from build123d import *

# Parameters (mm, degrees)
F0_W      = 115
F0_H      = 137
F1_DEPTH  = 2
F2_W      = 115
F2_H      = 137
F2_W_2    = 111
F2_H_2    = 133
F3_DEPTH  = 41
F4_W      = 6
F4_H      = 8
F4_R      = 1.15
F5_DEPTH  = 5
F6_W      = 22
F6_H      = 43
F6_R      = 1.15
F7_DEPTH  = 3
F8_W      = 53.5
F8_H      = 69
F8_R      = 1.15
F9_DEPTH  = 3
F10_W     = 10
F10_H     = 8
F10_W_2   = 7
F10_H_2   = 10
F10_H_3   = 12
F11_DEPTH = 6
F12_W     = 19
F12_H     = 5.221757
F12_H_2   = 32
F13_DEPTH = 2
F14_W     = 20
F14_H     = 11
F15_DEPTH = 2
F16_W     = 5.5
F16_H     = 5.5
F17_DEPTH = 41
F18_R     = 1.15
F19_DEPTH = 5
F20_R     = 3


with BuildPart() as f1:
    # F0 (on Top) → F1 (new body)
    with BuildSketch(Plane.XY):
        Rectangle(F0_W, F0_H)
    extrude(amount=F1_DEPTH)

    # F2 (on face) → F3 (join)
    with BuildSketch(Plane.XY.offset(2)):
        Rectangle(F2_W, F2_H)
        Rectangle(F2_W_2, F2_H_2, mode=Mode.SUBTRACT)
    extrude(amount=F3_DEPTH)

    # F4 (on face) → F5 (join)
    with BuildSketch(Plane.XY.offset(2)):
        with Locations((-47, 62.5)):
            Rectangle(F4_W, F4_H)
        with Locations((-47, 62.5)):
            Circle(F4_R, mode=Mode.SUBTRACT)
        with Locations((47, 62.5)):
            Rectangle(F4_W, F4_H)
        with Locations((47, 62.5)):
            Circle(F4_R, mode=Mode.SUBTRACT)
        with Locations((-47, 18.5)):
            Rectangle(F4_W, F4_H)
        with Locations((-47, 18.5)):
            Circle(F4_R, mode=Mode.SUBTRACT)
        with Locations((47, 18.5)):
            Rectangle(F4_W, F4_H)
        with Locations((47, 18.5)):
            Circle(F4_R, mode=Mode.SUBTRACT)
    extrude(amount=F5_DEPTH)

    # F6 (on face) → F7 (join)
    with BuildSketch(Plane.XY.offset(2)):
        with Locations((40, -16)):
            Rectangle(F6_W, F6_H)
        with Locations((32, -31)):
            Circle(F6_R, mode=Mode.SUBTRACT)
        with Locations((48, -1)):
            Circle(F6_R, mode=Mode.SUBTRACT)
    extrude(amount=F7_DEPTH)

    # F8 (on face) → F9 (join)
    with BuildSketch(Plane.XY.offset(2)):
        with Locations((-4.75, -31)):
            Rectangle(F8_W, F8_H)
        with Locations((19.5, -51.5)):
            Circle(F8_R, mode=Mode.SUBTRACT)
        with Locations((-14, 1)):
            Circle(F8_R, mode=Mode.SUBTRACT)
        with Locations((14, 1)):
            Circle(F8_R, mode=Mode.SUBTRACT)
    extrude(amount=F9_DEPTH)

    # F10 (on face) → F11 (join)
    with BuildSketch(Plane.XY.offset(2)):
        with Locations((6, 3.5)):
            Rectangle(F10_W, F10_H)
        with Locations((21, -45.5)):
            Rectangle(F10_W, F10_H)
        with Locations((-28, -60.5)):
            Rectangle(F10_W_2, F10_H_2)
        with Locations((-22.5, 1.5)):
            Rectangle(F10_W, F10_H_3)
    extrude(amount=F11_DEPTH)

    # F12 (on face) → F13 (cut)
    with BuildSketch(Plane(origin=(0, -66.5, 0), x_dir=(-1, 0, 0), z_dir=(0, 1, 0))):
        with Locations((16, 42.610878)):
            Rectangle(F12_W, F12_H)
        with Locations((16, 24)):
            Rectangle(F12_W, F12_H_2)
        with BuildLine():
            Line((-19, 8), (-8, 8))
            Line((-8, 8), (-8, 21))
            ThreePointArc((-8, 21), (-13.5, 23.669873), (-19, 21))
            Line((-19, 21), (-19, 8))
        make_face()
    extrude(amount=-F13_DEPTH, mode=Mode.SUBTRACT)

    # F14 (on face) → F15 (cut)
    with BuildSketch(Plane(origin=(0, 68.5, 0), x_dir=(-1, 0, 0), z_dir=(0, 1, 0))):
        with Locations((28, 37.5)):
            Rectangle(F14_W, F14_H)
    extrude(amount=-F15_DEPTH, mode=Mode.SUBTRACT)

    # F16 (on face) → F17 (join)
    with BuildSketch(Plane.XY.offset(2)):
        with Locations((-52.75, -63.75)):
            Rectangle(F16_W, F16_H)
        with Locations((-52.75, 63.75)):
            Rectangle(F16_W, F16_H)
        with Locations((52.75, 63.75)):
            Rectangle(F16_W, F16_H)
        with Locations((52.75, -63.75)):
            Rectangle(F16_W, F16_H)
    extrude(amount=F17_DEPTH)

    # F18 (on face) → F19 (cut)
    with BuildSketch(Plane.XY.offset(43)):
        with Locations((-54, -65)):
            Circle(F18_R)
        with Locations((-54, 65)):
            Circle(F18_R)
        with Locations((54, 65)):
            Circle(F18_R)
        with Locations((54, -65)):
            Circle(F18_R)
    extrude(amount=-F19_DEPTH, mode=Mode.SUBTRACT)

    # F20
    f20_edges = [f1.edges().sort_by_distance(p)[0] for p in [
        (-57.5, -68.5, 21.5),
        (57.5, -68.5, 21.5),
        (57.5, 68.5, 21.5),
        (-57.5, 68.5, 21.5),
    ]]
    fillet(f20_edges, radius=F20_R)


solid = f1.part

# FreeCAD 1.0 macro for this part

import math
import FreeCAD as App
import Part
import Sketcher
from FreeCAD import Vector


def edges_at(feature, points):
    """Names of the edges that pass closest to the given points."""
    edges = feature.Shape.Edges
    near = lambda p: min(range(len(edges)), key=lambda i: edges[i].distToShape(Part.Vertex(*p))[0])
    return sorted({f"Edge{near(p) + 1}" for p in points})


def add_polygon(sketch, points):
    """Adds a closed chain of lines whose ends are joined by coincident constraints."""
    first, n = sketch.GeometryCount, len(points)
    for a, b in zip(points, points[1:] + points[:1]):
        sketch.addGeometry(Part.LineSegment(App.Vector(*a, 0), App.Vector(*b, 0)), False)
    for i in range(n):
        sketch.addConstraint(Sketcher.Constraint("Coincident", first + i, 2, first + (i + 1) % n, 1))

doc = App.newDocument("Part")
body = doc.addObject("PartDesign::Body", "Body")

# Sketch on XY plane
sketch1 = body.newObject("Sketcher::SketchObject", "Sketch")
sketch1.AttachmentSupport = (doc.getObject("XY_Plane"), [""])
sketch1.MapMode = "FlatFace"
add_polygon(sketch1, [(-58, 68), (-58, -68), (58, -68), (58, 68)])  # lines 0-3
sketch1.addConstraint([
    Sketcher.Constraint("Vertical", 0),
    Sketcher.Constraint("Horizontal", 1),
    Sketcher.Constraint("Vertical", 2),
    Sketcher.Constraint("Horizontal", 3),
    Sketcher.Constraint("Symmetric", 0, 2, 2, 2, -1, 1),
    Sketcher.Constraint("DistanceX", 1, 1, 1, 2, 115.0),
    Sketcher.Constraint("DistanceY", 0, 2, 0, 1, 137.0),
])
pad1 = body.newObject("PartDesign::Pad", "Pad")
pad1.Profile = sketch1
pad1.Length = 2

# Sketch on XY plane
sketch2 = body.newObject("Sketcher::SketchObject", "Sketch001")
sketch2.AttachmentSupport = (doc.getObject("XY_Plane"), [""])
sketch2.MapMode = "FlatFace"
sketch2.AttachmentOffset = App.Placement(Vector(0, 0, 2), App.Rotation())
add_polygon(sketch2, [(-58, 68), (-58, -68), (58, -68), (58, 68)])  # lines 0-3
add_polygon(sketch2, [(56, -66), (-56, -66), (-56, 66), (56, 66)])  # lines 4-7
sketch2.addConstraint([
    Sketcher.Constraint("Vertical", 0),
    Sketcher.Constraint("Horizontal", 1),
    Sketcher.Constraint("Vertical", 2),
    Sketcher.Constraint("Horizontal", 3),
    Sketcher.Constraint("Horizontal", 4),
    Sketcher.Constraint("Vertical", 5),
    Sketcher.Constraint("Horizontal", 6),
    Sketcher.Constraint("Vertical", 7),
    Sketcher.Constraint("Symmetric", 0, 2, 2, 2, -1, 1),
    Sketcher.Constraint("Symmetric", 4, 2, 6, 2, -1, 1),
    Sketcher.Constraint("DistanceX", 1, 1, 1, 2, 115.0),
    Sketcher.Constraint("DistanceX", 4, 2, 4, 1, 111.0),
    Sketcher.Constraint("DistanceY", 0, 2, 0, 1, 137.0),
    Sketcher.Constraint("DistanceY", 5, 1, 5, 2, 133.0),
])
pad2 = body.newObject("PartDesign::Pad", "Pad001")
pad2.Profile = sketch2
pad2.Length = 41

# Sketch on XY plane
sketch3 = body.newObject("Sketcher::SketchObject", "Sketch002")
sketch3.AttachmentSupport = (doc.getObject("XY_Plane"), [""])
sketch3.MapMode = "FlatFace"
sketch3.AttachmentOffset = App.Placement(Vector(0, 0, 2), App.Rotation())
add_polygon(sketch3, [(-50, 66.5), (-50, 58.5), (-44, 58.5), (-44, 66.5)])  # lines 0-3
sketch3.addGeometry(Part.Circle(Vector(-47, 62.5, 0), Vector(0, 0, 1), 1.1), False)  # 4
add_polygon(sketch3, [(44, 66.5), (44, 58.5), (50, 58.5), (50, 66.5)])  # lines 5-8
sketch3.addGeometry(Part.Circle(Vector(47, 62.5, 0), Vector(0, 0, 1), 1.1), False)  # 9
add_polygon(sketch3, [(-50, 22.5), (-50, 14.5), (-44, 14.5), (-44, 22.5)])  # lines 10-13
sketch3.addGeometry(Part.Circle(Vector(-47, 18.5, 0), Vector(0, 0, 1), 1.1), False)  # 14
add_polygon(sketch3, [(44, 22.5), (44, 14.5), (50, 14.5), (50, 22.5)])  # lines 15-18
sketch3.addGeometry(Part.Circle(Vector(47, 18.5, 0), Vector(0, 0, 1), 1.1), False)  # 19
sketch3.addConstraint([
    Sketcher.Constraint("Vertical", 0),
    Sketcher.Constraint("Horizontal", 1),
    Sketcher.Constraint("Vertical", 2),
    Sketcher.Constraint("Horizontal", 3),
    Sketcher.Constraint("Vertical", 5),
    Sketcher.Constraint("Horizontal", 6),
    Sketcher.Constraint("Vertical", 7),
    Sketcher.Constraint("Horizontal", 8),
    Sketcher.Constraint("Vertical", 10),
    Sketcher.Constraint("Horizontal", 11),
    Sketcher.Constraint("Vertical", 12),
    Sketcher.Constraint("Horizontal", 13),
    Sketcher.Constraint("Vertical", 15),
    Sketcher.Constraint("Horizontal", 16),
    Sketcher.Constraint("Vertical", 17),
    Sketcher.Constraint("Horizontal", 18),
    Sketcher.Constraint("Equal", 4, 9),
    Sketcher.Constraint("Equal", 9, 14),
    Sketcher.Constraint("Equal", 14, 19),
    Sketcher.Constraint("Symmetric", 4, 3, 9, 3, -2),
    Sketcher.Constraint("Symmetric", 14, 3, 19, 3, -2),
    Sketcher.Constraint("Symmetric", 1, 2, 5, 2, -2),
    Sketcher.Constraint("Symmetric", 3, 2, 7, 2, -2),
    Sketcher.Constraint("Symmetric", 11, 2, 15, 2, -2),
    Sketcher.Constraint("Symmetric", 13, 2, 17, 2, -2),
    Sketcher.Constraint("Vertical", 4, 3, 14, 3),
    Sketcher.Constraint("Vertical", 3, 2, 10, 2),
    Sketcher.Constraint("Vertical", 2, 2, 11, 2),
    Sketcher.Constraint("Equal", 7, 10),
    Sketcher.Constraint("Diameter", 4, 2.3),
    Sketcher.Constraint("DistanceX", 1, 1, 1, 2, 6.0),
    Sketcher.Constraint("DistanceY", 0, 2, 0, 1, 8.0),
    Sketcher.Constraint("DistanceX", 4, 3, -1, 1, 47.0),
    Sketcher.Constraint("DistanceX", 0, 2, -1, 1, 50.0),
    Sketcher.Constraint("DistanceY", 14, 3, 4, 3, 44.0),
    Sketcher.Constraint("DistanceY", 0, 2, 4, 3, 4.0),
    Sketcher.Constraint("DistanceY", 10, 2, 14, 3, 4.0),
    Sketcher.Constraint("DistanceY", -1, 1, 4, 3, 62.5),
])
pad3 = body.newObject("PartDesign::Pad", "Pad002")
pad3.Profile = sketch3
pad3.Length = 5

# Sketch on XY plane
sketch4 = body.newObject("Sketcher::SketchObject", "Sketch003")
sketch4.AttachmentSupport = (doc.getObject("XY_Plane"), [""])
sketch4.MapMode = "FlatFace"
sketch4.AttachmentOffset = App.Placement(Vector(0, 0, 2), App.Rotation())
add_polygon(sketch4, [(29, 5.5), (29, -37.5), (51, -37.5), (51, 5.5)])  # lines 0-3
sketch4.addGeometry(Part.Circle(Vector(32, -31, 0), Vector(0, 0, 1), 1.1), False)  # 4
sketch4.addGeometry(Part.Circle(Vector(48, -1, 0), Vector(0, 0, 1), 1.1), False)  # 5
sketch4.addConstraint([
    Sketcher.Constraint("Vertical", 0),
    Sketcher.Constraint("Horizontal", 1),
    Sketcher.Constraint("Vertical", 2),
    Sketcher.Constraint("Horizontal", 3),
    Sketcher.Constraint("Equal", 4, 5),
    Sketcher.Constraint("Diameter", 4, 2.3),
    Sketcher.Constraint("DistanceX", 1, 1, 1, 2, 22.0),
    Sketcher.Constraint("DistanceY", 0, 2, 0, 1, 43.0),
    Sketcher.Constraint("DistanceX", -1, 1, 4, 3, 32.0),
    Sketcher.Constraint("DistanceY", 4, 3, -1, 1, 31.0),
    Sketcher.Constraint("DistanceX", -1, 1, 5, 3, 48.0),
    Sketcher.Constraint("DistanceY", 5, 3, -1, 1, 1.0),
    Sketcher.Constraint("DistanceX", -1, 1, 0, 2, 29.0),
    Sketcher.Constraint("DistanceY", 0, 2, -1, 1, 37.5),
])
pad4 = body.newObject("PartDesign::Pad", "Pad003")
pad4.Profile = sketch4
pad4.Length = 3

# Sketch on XY plane
sketch5 = body.newObject("Sketcher::SketchObject", "Sketch004")
sketch5.AttachmentSupport = (doc.getObject("XY_Plane"), [""])
sketch5.MapMode = "FlatFace"
sketch5.AttachmentOffset = App.Placement(Vector(0, 0, 2), App.Rotation())
add_polygon(sketch5, [(-31.5, 3.5), (-31.5, -65.5), (22, -65.5), (22, 3.5)])  # lines 0-3
sketch5.addGeometry(Part.Circle(Vector(19.5, -51.5, 0), Vector(0, 0, 1), 1.1), False)  # 4
sketch5.addGeometry(Part.Circle(Vector(-14, 1, 0), Vector(0, 0, 1), 1.1), False)  # 5
sketch5.addGeometry(Part.Circle(Vector(14, 1, 0), Vector(0, 0, 1), 1.1), False)  # 6
sketch5.addConstraint([
    Sketcher.Constraint("Vertical", 0),
    Sketcher.Constraint("Horizontal", 1),
    Sketcher.Constraint("Vertical", 2),
    Sketcher.Constraint("Horizontal", 3),
    Sketcher.Constraint("Equal", 4, 5),
    Sketcher.Constraint("Equal", 5, 6),
    Sketcher.Constraint("Symmetric", 5, 3, 6, 3, -2),
    Sketcher.Constraint("Diameter", 4, 2.3),
    Sketcher.Constraint("DistanceY", 0, 2, 0, 1, 69.0),
    Sketcher.Constraint("DistanceX", 1, 1, 1, 2, 53.5),
    Sketcher.Constraint("DistanceX", 5, 3, -1, 1, 14.0),
    Sketcher.Constraint("DistanceY", -1, 1, 5, 3, 1.0),
    Sketcher.Constraint("DistanceX", -1, 1, 1, 2, 22.0),
    Sketcher.Constraint("DistanceX", 0, 2, 4, 3, 51.0),
    Sketcher.Constraint("DistanceY", 0, 2, 4, 3, 14.0),
    Sketcher.Constraint("DistanceY", 4, 3, -1, 1, 51.5),
])
pad5 = body.newObject("PartDesign::Pad", "Pad004")
pad5.Profile = sketch5
pad5.Length = 3

# Sketch on XY plane
sketch6 = body.newObject("Sketcher::SketchObject", "Sketch005")
sketch6.AttachmentSupport = (doc.getObject("XY_Plane"), [""])
sketch6.MapMode = "FlatFace"
sketch6.AttachmentOffset = App.Placement(Vector(0, 0, 2), App.Rotation())
add_polygon(sketch6, [(1, 8), (1, 0), (11, 0), (11, 8)])  # lines 0-3
add_polygon(sketch6, [(16, -42), (16, -50), (26, -50), (26, -42)])  # lines 4-7
add_polygon(sketch6, [(-32, -56), (-32, -66), (-24, -66), (-24, -56)])  # lines 8-11
add_polygon(sketch6, [(-28, 8), (-28, -4), (-18, -4), (-18, 8)])  # lines 12-15
sketch6.addConstraint([
    Sketcher.Constraint("Vertical", 0),
    Sketcher.Constraint("Horizontal", 1),
    Sketcher.Constraint("Vertical", 2),
    Sketcher.Constraint("Horizontal", 3),
    Sketcher.Constraint("Vertical", 4),
    Sketcher.Constraint("Horizontal", 5),
    Sketcher.Constraint("Vertical", 6),
    Sketcher.Constraint("Horizontal", 7),
    Sketcher.Constraint("Vertical", 8),
    Sketcher.Constraint("Horizontal", 9),
    Sketcher.Constraint("Vertical", 10),
    Sketcher.Constraint("Horizontal", 11),
    Sketcher.Constraint("Vertical", 12),
    Sketcher.Constraint("Horizontal", 13),
    Sketcher.Constraint("Vertical", 14),
    Sketcher.Constraint("Horizontal", 15),
    Sketcher.Constraint("Horizontal", 3, 2, 14, 2),
    Sketcher.Constraint("Equal", 3, 5),
    Sketcher.Constraint("Equal", 7, 13),
    Sketcher.Constraint("Equal", 2, 4),
    Sketcher.Constraint("Equal", 15, 8),
    Sketcher.Constraint("DistanceX", 1, 1, 1, 2, 10.0),
    Sketcher.Constraint("DistanceX", 9, 1, 9, 2, 7.0),
    Sketcher.Constraint("DistanceY", 0, 2, 0, 1, 8.0),
    Sketcher.Constraint("DistanceY", 12, 2, 12, 1, 12.0),
    Sketcher.Constraint("DistanceX", -1, 1, 0, 2, 1.0),
    Sketcher.Constraint("DistanceX", -1, 1, 4, 2, 16.0),
    Sketcher.Constraint("DistanceY", 4, 2, 1, 2, 49.0),
    Sketcher.Constraint("DistanceY", 8, 2, 4, 2, 16.0),
    Sketcher.Constraint("DistanceX", 12, 2, 10, 2, 3.0),
    Sketcher.Constraint("DistanceY", 0, 2, -1, 1, 0.5),
    Sketcher.Constraint("DistanceX", 8, 2, -1, 1, 31.5),
])
pad6 = body.newObject("PartDesign::Pad", "Pad005")
pad6.Profile = sketch6
pad6.Length = 6

# Sketch on XZ plane
sketch7 = body.newObject("Sketcher::SketchObject", "Sketch006")
sketch7.AttachmentSupport = (doc.getObject("XZ_Plane"), [""])
sketch7.MapMode = "FlatFace"
sketch7.AttachmentOffset = App.Placement(Vector(0, 0, 66.5), App.Rotation())
add_polygon(sketch7, [(-6, 8), (-26, 8), (-26, 45), (-6, 45)])  # lines 0-3
sketch7.addGeometry(Part.LineSegment(Vector(19, 8, 0), Vector(8, 8, 0)), False)  # 4
sketch7.addGeometry(Part.LineSegment(Vector(8, 8, 0), Vector(8, 21, 0)), False)  # 5
sketch7.addGeometry(Part.ArcOfCircle(Part.Circle(Vector(14, 17, 0), Vector(0, 0, 1), 7), math.radians(38), math.radians(142)), False)  # 6
sketch7.addGeometry(Part.LineSegment(Vector(19, 21, 0), Vector(19, 8, 0)), False)  # 7
sketch7.addConstraint([
    Sketcher.Constraint("Coincident", 4, 2, 5, 1),
    Sketcher.Constraint("Coincident", 5, 2, 6, 2),
    Sketcher.Constraint("Coincident", 6, 1, 7, 1),
    Sketcher.Constraint("Coincident", 7, 2, 4, 1),
    Sketcher.Constraint("Horizontal", 0),
    Sketcher.Constraint("Vertical", 1),
    Sketcher.Constraint("Horizontal", 2),
    Sketcher.Constraint("Vertical", 3),
    Sketcher.Constraint("Horizontal", 4),
    Sketcher.Constraint("Vertical", 5),
    Sketcher.Constraint("Vertical", 7),
    Sketcher.Constraint("Horizontal", 3, 2, 4, 2),
    Sketcher.Constraint("Horizontal", 5, 2, 6, 1),
    Sketcher.Constraint("Radius", 6, 7.0),
    Sketcher.Constraint("DistanceX", 0, 2, 0, 1, 19.0),
    Sketcher.Constraint("DistanceX", 4, 2, 4, 1, 11.0),
    Sketcher.Constraint("DistanceY", 5, 1, 5, 2, 13.0),
    Sketcher.Constraint("DistanceY", -1, 1, 0, 2, 8.0),
    Sketcher.Constraint("DistanceX", -1, 1, 4, 2, 8.0),
    Sketcher.Constraint("DistanceX", 0, 2, 6, 3, 39.0),
    Sketcher.Constraint("DistanceY", 1, 1, 1, 2, 37.221756),
])
pocket1 = body.newObject("PartDesign::Pocket", "Pocket")
pocket1.Profile = sketch7
pocket1.Length = 2
pocket1.Reversed = True

# Sketch on XZ plane
sketch8 = body.newObject("Sketcher::SketchObject", "Sketch007")
sketch8.AttachmentSupport = (doc.getObject("XZ_Plane"), [""])
sketch8.MapMode = "FlatFace"
sketch8.AttachmentOffset = App.Placement(Vector(0, 0, -68.5), App.Rotation())
add_polygon(sketch8, [(-18, 43), (-18, 32), (-38, 32), (-38, 43)])  # lines 0-3
sketch8.addConstraint([
    Sketcher.Constraint("Vertical", 0),
    Sketcher.Constraint("Horizontal", 1),
    Sketcher.Constraint("Vertical", 2),
    Sketcher.Constraint("Horizontal", 3),
    Sketcher.Constraint("DistanceX", 1, 2, 1, 1, 20.0),
    Sketcher.Constraint("DistanceY", 0, 2, 0, 1, 11.0),
    Sketcher.Constraint("DistanceX", 0, 2, -1, 1, 18.0),
    Sketcher.Constraint("DistanceY", -1, 1, 0, 2, 32.0),
])
pocket2 = body.newObject("PartDesign::Pocket", "Pocket001")
pocket2.Profile = sketch8
pocket2.Length = 2
pocket2.Reversed = True

# Sketch on XY plane
sketch9 = body.newObject("Sketcher::SketchObject", "Sketch008")
sketch9.AttachmentSupport = (doc.getObject("XY_Plane"), [""])
sketch9.MapMode = "FlatFace"
sketch9.AttachmentOffset = App.Placement(Vector(0, 0, 2), App.Rotation())
add_polygon(sketch9, [(-56, -61), (-56, -66), (-50, -66), (-50, -61)])  # lines 0-3
add_polygon(sketch9, [(-56, 66), (-56, 61), (-50, 61), (-50, 66)])  # lines 4-7
add_polygon(sketch9, [(50, 66), (50, 61), (56, 61), (56, 66)])  # lines 8-11
add_polygon(sketch9, [(50, -61), (50, -66), (56, -66), (56, -61)])  # lines 12-15
sketch9.addConstraint([
    Sketcher.Constraint("Vertical", 0),
    Sketcher.Constraint("Horizontal", 1),
    Sketcher.Constraint("Vertical", 2),
    Sketcher.Constraint("Horizontal", 3),
    Sketcher.Constraint("Vertical", 4),
    Sketcher.Constraint("Horizontal", 5),
    Sketcher.Constraint("Vertical", 6),
    Sketcher.Constraint("Horizontal", 7),
    Sketcher.Constraint("Vertical", 8),
    Sketcher.Constraint("Horizontal", 9),
    Sketcher.Constraint("Vertical", 10),
    Sketcher.Constraint("Horizontal", 11),
    Sketcher.Constraint("Vertical", 12),
    Sketcher.Constraint("Horizontal", 13),
    Sketcher.Constraint("Vertical", 14),
    Sketcher.Constraint("Horizontal", 15),
    Sketcher.Constraint("Symmetric", 2, 2, 8, 2, -1, 1),
    Sketcher.Constraint("Symmetric", 0, 2, 10, 2, -1, 1),
    Sketcher.Constraint("Symmetric", 6, 2, 12, 2, -1, 1),
    Sketcher.Constraint("Symmetric", 4, 2, 14, 2, -1, 1),
    Sketcher.Constraint("Symmetric", 5, 2, 8, 2, -2),
    Sketcher.Constraint("Symmetric", 7, 2, 10, 2, -2),
    Sketcher.Constraint("Equal", 15, 0),
    Sketcher.Constraint("DistanceX", 1, 1, 1, 2, 5.5),
    Sketcher.Constraint("DistanceX", 1, 2, -1, 1, 50.0),
    Sketcher.Constraint("DistanceY", 2, 2, -1, 1, 61.0),
])
pad7 = body.newObject("PartDesign::Pad", "Pad006")
pad7.Profile = sketch9
pad7.Length = 41

# Sketch on XY plane
sketch10 = body.newObject("Sketcher::SketchObject", "Sketch009")
sketch10.AttachmentSupport = (doc.getObject("XY_Plane"), [""])
sketch10.MapMode = "FlatFace"
sketch10.AttachmentOffset = App.Placement(Vector(0, 0, 43), App.Rotation())
sketch10.addGeometry([
    Part.Circle(Vector(-54, -65, 0), Vector(0, 0, 1), 1.1),
    Part.Circle(Vector(-54, 65, 0), Vector(0, 0, 1), 1.1),
    Part.Circle(Vector(54, 65, 0), Vector(0, 0, 1), 1.1),
    Part.Circle(Vector(54, -65, 0), Vector(0, 0, 1), 1.1),
], False)
sketch10.addConstraint([
    Sketcher.Constraint("Equal", 0, 1),
    Sketcher.Constraint("Equal", 1, 2),
    Sketcher.Constraint("Equal", 2, 3),
    Sketcher.Constraint("Symmetric", 0, 3, 2, 3, -1, 1),
    Sketcher.Constraint("Symmetric", 1, 3, 3, 3, -1, 1),
    Sketcher.Constraint("Symmetric", 1, 3, 2, 3, -2),
    Sketcher.Constraint("Diameter", 0, 2.3),
    Sketcher.Constraint("DistanceX", 0, 3, -1, 1, 54.0),
    Sketcher.Constraint("DistanceY", 0, 3, -1, 1, 65.0),
])
pocket3 = body.newObject("PartDesign::Pocket", "Pocket002")
pocket3.Profile = sketch10
pocket3.Length = 5
doc.recompute()

fillet = body.newObject("PartDesign::Fillet", "Fillet")
fillet.Base = (pocket3, edges_at(pocket3, [
    (-57.5, -68.5, 21.5),
    (57.5, -68.5, 21.5),
    (57.5, 68.5, 21.5),
    (-57.5, 68.5, 21.5),
]))
fillet.Radius = 3

doc.recompute()
